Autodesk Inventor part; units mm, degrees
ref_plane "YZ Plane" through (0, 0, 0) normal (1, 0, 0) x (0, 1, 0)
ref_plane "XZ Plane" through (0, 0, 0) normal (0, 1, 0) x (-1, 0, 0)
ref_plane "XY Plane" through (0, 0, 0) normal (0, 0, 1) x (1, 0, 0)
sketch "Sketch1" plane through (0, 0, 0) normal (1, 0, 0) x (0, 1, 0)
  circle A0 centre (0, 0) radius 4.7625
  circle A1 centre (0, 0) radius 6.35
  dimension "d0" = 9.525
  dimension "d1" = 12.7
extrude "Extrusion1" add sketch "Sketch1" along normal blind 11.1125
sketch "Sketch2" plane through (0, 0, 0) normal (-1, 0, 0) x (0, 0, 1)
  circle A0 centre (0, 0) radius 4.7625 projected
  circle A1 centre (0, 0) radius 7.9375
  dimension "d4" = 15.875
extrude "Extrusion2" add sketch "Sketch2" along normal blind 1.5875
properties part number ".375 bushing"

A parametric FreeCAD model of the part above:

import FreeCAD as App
import Part
import Sketcher
from FreeCAD import Vector
Q = App.Units.Quantity

doc = App.newDocument("Part")
params = doc.addObject("Spreadsheet::Sheet", "Params")
for row, (alias, value) in enumerate([
    ("sketch1_diameter", "0.5 in"),
    ("sketch1_diameter2", "0.375 in"),
    ("pad1_length", "0.4375 in"),
    ("sketch2_diameter", "0.625 in"),
    ("sketch2_diameter2", "0.375 in"),
    ("pad2_length", "0.0625 in"),
], start=1):
    params.set(f"A{row}", alias)
    params.set(f"B{row}", "=" + value)
    params.setAlias(f"B{row}", alias)

body = doc.addObject("PartDesign::Body", "Body")

# Sketch on YZ plane
sketch1 = body.newObject("Sketcher::SketchObject", "Sketch")
sketch1.AttachmentSupport = (doc.getObject("YZ_Plane"), [""])
sketch1.MapMode = "FlatFace"
sketch1.addGeometry(Part.Circle(Vector(0, 0, 0), Vector(0, 0, 1), 6.3), False)
sketch1.addGeometry(Part.Circle(Vector(0, 0, 0), Vector(0, 0, 1), 4.8), False)
sketch1.addConstraint(Sketcher.Constraint("Coincident", 0, 3, -1, 1))
sketch1.addConstraint(Sketcher.Constraint("Coincident", 1, 3, -1, 1))
sketch1.addConstraint(Sketcher.Constraint("Diameter", 0, Q("0.5 in")))
sketch1.addConstraint(Sketcher.Constraint("Diameter", 1, Q("0.375 in")))
sketch1.setExpression("Constraints[2]", "Params.sketch1_diameter")
sketch1.setExpression("Constraints[3]", "Params.sketch1_diameter2")
pad1 = body.newObject("PartDesign::Pad", "Pad")
pad1.Profile = sketch1
pad1.setExpression("Length", "Params.pad1_length")

# Sketch on YZ plane
sketch2 = body.newObject("Sketcher::SketchObject", "Sketch001")
sketch2.AttachmentSupport = (doc.getObject("YZ_Plane"), [""])
sketch2.MapMode = "FlatFace"
sketch2.addGeometry(Part.Circle(Vector(0, 0, 0), Vector(0, 0, 1), 7.9), False)
sketch2.addGeometry(Part.Circle(Vector(0, 0, 0), Vector(0, 0, 1), 4.8), False)
sketch2.addConstraint(Sketcher.Constraint("Coincident", 0, 3, -1, 1))
sketch2.addConstraint(Sketcher.Constraint("Coincident", 1, 3, -1, 1))
sketch2.addConstraint(Sketcher.Constraint("Diameter", 0, Q("0.625 in")))
sketch2.addConstraint(Sketcher.Constraint("Diameter", 1, Q("0.375 in")))
sketch2.setExpression("Constraints[2]", "Params.sketch2_diameter")
sketch2.setExpression("Constraints[3]", "Params.sketch2_diameter2")
pad2 = body.newObject("PartDesign::Pad", "Pad001")
pad2.Profile = sketch2
pad2.setExpression("Length", "Params.pad2_length")
pad2.Reversed = True

doc.recompute()
